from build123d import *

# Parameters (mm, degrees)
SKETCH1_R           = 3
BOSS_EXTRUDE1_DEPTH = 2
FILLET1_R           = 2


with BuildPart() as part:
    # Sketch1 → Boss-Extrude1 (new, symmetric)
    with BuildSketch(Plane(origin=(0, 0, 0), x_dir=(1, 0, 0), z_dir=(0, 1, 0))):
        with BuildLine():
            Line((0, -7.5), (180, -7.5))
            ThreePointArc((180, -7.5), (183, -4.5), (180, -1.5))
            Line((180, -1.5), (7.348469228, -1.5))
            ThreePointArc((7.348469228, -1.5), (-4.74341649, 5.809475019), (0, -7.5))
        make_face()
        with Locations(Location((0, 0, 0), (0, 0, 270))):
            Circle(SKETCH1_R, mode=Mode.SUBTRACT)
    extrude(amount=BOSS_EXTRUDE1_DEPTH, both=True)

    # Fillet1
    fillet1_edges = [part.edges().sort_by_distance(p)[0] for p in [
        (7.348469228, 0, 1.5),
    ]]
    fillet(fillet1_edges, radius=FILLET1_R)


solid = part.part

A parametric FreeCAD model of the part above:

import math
import FreeCAD as App
import Part
import Sketcher


def edges_at(feature, points):
    """Names of the edges that pass closest to the given points."""
    edges = feature.Shape.Edges
    near = lambda p: min(range(len(edges)), key=lambda i: edges[i].distToShape(Part.Vertex(*p))[0])
    return sorted({f"Edge{near(p) + 1}" for p in points})

doc = App.newDocument("Part")
body = doc.addObject("PartDesign::Body", "Body")

# Sketch on XZ plane
sketch1 = body.newObject("Sketcher::SketchObject", "Sketch")
sketch1.AttachmentSupport = (doc.getObject("XZ_Plane"), [""])
sketch1.MapMode = "FlatFace"
sketch1.addGeometry(Part.LineSegment(App.Vector(0, 7.5, 0), App.Vector(180, 7.5, 0)), False)
sketch1.addGeometry(Part.ArcOfCircle(Part.Circle(App.Vector(180, 4.5, 0), App.Vector(0, 0, 1), 3), math.radians(-90), math.radians(90)), False)
sketch1.addGeometry(Part.LineSegment(App.Vector(180, 1.5, 0), App.Vector(7.3, 1.5, 0)), False)
sketch1.addGeometry(Part.ArcOfCircle(Part.Circle(App.Vector(0, 0, 0), App.Vector(0, 0, 1), 7.5), math.radians(90), math.radians(372)), False)
sketch1.addGeometry(Part.Circle(App.Vector(0, 0, 0), App.Vector(0, 0, 1), 3), False)
sketch1.addConstraint(Sketcher.Constraint("Tangent", 0, 2, 1, 2))
sketch1.addConstraint(Sketcher.Constraint("Tangent", 1, 1, 2, 1))
sketch1.addConstraint(Sketcher.Constraint("Coincident", 2, 2, 3, 2))
sketch1.addConstraint(Sketcher.Constraint("Tangent", 3, 1, 0, 1))
sketch1.addConstraint(Sketcher.Constraint("Horizontal", 0))
sketch1.addConstraint(Sketcher.Constraint("Horizontal", 2))
sketch1.addConstraint(Sketcher.Constraint("Coincident", 3, 3, -1, 1))
sketch1.addConstraint(Sketcher.Constraint("Coincident", 4, 3, -1, 1))
sketch1.addConstraint(Sketcher.Constraint("Equal", 1, 4))
sketch1.addConstraint(Sketcher.Constraint("Diameter", 4, 6.0))
sketch1.addConstraint(Sketcher.Constraint("Radius", 3, 7.5))
sketch1.addConstraint(Sketcher.Constraint("DistanceX", 0, 1, 0, 2, 180.0))
pad1 = body.newObject("PartDesign::Pad", "Pad")
pad1.Profile = sketch1
pad1.Length = 4
pad1.Midplane = True
doc.recompute()

fillet = body.newObject("PartDesign::Fillet", "Fillet")
fillet.Base = (pad1, edges_at(pad1, [(7.348, 0, 1.5)]))
fillet.Radius = 2

doc.recompute()
